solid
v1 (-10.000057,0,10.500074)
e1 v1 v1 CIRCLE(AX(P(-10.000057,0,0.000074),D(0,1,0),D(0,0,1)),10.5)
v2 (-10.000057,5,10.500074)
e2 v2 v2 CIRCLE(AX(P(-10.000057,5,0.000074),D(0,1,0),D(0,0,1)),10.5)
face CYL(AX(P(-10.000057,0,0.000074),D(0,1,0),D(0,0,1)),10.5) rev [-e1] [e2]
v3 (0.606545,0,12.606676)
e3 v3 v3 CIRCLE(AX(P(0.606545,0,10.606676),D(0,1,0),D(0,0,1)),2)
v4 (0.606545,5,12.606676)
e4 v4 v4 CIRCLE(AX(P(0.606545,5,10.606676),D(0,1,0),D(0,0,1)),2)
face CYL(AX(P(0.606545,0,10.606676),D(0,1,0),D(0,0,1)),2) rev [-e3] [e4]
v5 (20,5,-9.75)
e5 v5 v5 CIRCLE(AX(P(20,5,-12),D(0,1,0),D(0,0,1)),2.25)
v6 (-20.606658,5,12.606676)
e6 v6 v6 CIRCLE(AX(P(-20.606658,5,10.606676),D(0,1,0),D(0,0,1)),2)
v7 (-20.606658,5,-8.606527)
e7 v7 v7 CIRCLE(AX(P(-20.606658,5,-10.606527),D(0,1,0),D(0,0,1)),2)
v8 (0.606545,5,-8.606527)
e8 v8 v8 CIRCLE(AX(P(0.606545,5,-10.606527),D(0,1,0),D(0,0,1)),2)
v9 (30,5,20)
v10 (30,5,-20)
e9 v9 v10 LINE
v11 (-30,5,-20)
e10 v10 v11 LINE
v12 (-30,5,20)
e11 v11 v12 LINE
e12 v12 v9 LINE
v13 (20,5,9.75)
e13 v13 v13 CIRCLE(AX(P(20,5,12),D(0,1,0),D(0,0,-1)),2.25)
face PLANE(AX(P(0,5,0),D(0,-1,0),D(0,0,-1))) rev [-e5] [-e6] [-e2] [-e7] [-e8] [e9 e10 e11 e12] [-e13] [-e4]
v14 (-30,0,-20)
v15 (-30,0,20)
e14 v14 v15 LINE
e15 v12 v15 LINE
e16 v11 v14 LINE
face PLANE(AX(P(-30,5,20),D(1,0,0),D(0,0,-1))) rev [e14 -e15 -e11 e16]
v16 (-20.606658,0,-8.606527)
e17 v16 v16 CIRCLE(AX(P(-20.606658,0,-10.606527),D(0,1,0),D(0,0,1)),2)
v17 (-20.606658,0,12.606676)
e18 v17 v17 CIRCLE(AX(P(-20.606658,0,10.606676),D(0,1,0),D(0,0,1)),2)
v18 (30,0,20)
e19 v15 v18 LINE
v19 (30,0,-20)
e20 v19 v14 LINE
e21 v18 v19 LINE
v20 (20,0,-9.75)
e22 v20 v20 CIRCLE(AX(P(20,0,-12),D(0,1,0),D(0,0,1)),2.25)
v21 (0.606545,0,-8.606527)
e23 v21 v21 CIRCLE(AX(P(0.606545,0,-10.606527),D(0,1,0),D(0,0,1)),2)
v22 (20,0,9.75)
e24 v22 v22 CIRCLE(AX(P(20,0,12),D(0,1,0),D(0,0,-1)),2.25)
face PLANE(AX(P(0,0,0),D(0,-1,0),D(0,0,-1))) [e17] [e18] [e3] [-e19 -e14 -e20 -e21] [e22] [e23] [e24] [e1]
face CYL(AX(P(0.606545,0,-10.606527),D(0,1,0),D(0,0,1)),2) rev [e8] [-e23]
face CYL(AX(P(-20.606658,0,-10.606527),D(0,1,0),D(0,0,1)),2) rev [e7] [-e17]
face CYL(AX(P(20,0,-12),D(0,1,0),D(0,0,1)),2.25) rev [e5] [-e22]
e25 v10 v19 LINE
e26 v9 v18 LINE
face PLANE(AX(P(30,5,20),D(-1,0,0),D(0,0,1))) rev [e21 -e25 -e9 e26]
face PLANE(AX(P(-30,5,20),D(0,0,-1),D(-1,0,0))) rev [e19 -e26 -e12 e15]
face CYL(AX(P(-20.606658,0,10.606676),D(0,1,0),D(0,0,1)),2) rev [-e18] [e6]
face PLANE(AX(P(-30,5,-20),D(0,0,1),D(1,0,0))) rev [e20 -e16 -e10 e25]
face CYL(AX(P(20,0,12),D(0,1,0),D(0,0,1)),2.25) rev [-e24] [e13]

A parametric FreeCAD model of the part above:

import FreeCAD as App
import Part
import Sketcher
Q = App.Units.Quantity

doc = App.newDocument("Part")
body = doc.addObject("PartDesign::Body", "Body")

# Sketch on XZ plane
sketch1 = body.newObject("Sketcher::SketchObject", "Sketch")
sketch1.AttachmentSupport = (doc.getObject("XZ_Plane"), [""])
sketch1.MapMode = "FlatFace"
sketch1.addGeometry([
    Part.LineSegment(App.Vector(-30, -20, 0), App.Vector(-30, 20, 0)),
    Part.LineSegment(App.Vector(-30, 20, 0), App.Vector(30, 20, 0)),
    Part.LineSegment(App.Vector(30, 20, 0), App.Vector(30, -20, 0)),
    Part.LineSegment(App.Vector(30, -20, 0), App.Vector(-30, -20, 0)),
], False)
sketch1.addConstraint([
    Sketcher.Constraint("Coincident", 0, 2, 1, 1),
    Sketcher.Constraint("Coincident", 1, 2, 2, 1),
    Sketcher.Constraint("Coincident", 2, 2, 3, 1),
    Sketcher.Constraint("Coincident", 3, 2, 0, 1),
    Sketcher.Constraint("Vertical", 0),
    Sketcher.Constraint("Horizontal", 1),
    Sketcher.Constraint("Vertical", 2),
    Sketcher.Constraint("Horizontal", 3),
    Sketcher.Constraint("Symmetric", 0, 2, 2, 2, -1, 1),
    Sketcher.Constraint("DistanceX", 1, 1, 1, 2, Q("60 mm")),
    Sketcher.Constraint("DistanceY", 0, 1, 0, 2, Q("40 mm")),
])
pad1 = body.newObject("PartDesign::Pad", "Pad")
pad1.Profile = sketch1
pad1.Length = 5
pad1.Reversed = True

# Sketch on XZ plane
sketch2 = body.newObject("Sketcher::SketchObject", "Sketch001")
sketch2.AttachmentSupport = (doc.getObject("XZ_Plane"), [""])
sketch2.MapMode = "FlatFace"
sketch2.AttachmentOffset = App.Placement(App.Vector(0, 0, -5), App.Rotation())
sketch2.addGeometry([
    Part.Circle(App.Vector(20, -12, 0), App.Vector(0, 0, 1), 2.25),
    Part.Circle(App.Vector(20, 12, 0), App.Vector(0, 0, 1), 2.25),
], False)
sketch2.addConstraint([
    Sketcher.Constraint("Equal", 0, 1),
    Sketcher.Constraint("Symmetric", 0, 3, 1, 3, -1),
    Sketcher.Constraint("Diameter", 0, Q("4.5 mm")),
    Sketcher.Constraint("DistanceX", -1, 1, 0, 3, Q("20 mm")),
    Sketcher.Constraint("DistanceY", 0, 3, -1, 1, Q("12 mm")),
])
pocket1 = body.newObject("PartDesign::Pocket", "Pocket")
pocket1.Profile = sketch2
pocket1.Type = "ThroughAll"
pocket1.Reversed = True

# Sketch on XZ plane
sketch3 = body.newObject("Sketcher::SketchObject", "Sketch002")
sketch3.AttachmentSupport = (doc.getObject("XZ_Plane"), [""])
sketch3.MapMode = "FlatFace"
sketch3.AttachmentOffset = App.Placement(App.Vector(0, 0, -5), App.Rotation())
sketch3.addGeometry([
    Part.Circle(App.Vector(-10.000057, 0.000074, 0), App.Vector(0, 0, 1), 10.5),  # 0
    Part.Circle(App.Vector(-20.606658, -10.606527, 0), App.Vector(0, 0, 1), 2),  # 1
    Part.Circle(App.Vector(0.606545, -10.606527, 0), App.Vector(0, 0, 1), 2),  # 2
    Part.Circle(App.Vector(0.606545, 10.606676, 0), App.Vector(0, 0, 1), 2),  # 3
    Part.Circle(App.Vector(-20.606658, 10.606676, 0), App.Vector(0, 0, 1), 2),  # 4
], False)
sketch3.addConstraint([
    Sketcher.Constraint("Equal", 1, 2),
    Sketcher.Constraint("Equal", 2, 3),
    Sketcher.Constraint("Equal", 3, 4),
    Sketcher.Constraint("Horizontal", 1, 3, 2, 3),
    Sketcher.Constraint("Horizontal", 3, 3, 4, 3),
    Sketcher.Constraint("Vertical", 2, 3, 3, 3),
    Sketcher.Constraint("Vertical", 1, 3, 4, 3),
    Sketcher.Constraint("Diameter", 0, Q("21 mm")),
    Sketcher.Constraint("Diameter", 1, Q("4 mm")),
    Sketcher.Constraint("DistanceX", 1, 3, 0, 3, Q("10.606602 mm")),
    Sketcher.Constraint("DistanceY", 1, 3, 0, 3, Q("10.606602 mm")),
    Sketcher.Constraint("DistanceX", 0, 3, 2, 3, Q("10.606602 mm")),
    Sketcher.Constraint("DistanceY", 0, 3, 3, 3, Q("10.606602 mm")),
    Sketcher.Constraint("DistanceX", 1, 3, -1, 1, Q("20.606658 mm")),
    Sketcher.Constraint("DistanceY", 1, 3, -1, 1, Q("10.606527 mm")),
])
pocket2 = body.newObject("PartDesign::Pocket", "Pocket001")
pocket2.Profile = sketch3
pocket2.Type = "ThroughAll"
pocket2.Reversed = True

doc.recompute()
